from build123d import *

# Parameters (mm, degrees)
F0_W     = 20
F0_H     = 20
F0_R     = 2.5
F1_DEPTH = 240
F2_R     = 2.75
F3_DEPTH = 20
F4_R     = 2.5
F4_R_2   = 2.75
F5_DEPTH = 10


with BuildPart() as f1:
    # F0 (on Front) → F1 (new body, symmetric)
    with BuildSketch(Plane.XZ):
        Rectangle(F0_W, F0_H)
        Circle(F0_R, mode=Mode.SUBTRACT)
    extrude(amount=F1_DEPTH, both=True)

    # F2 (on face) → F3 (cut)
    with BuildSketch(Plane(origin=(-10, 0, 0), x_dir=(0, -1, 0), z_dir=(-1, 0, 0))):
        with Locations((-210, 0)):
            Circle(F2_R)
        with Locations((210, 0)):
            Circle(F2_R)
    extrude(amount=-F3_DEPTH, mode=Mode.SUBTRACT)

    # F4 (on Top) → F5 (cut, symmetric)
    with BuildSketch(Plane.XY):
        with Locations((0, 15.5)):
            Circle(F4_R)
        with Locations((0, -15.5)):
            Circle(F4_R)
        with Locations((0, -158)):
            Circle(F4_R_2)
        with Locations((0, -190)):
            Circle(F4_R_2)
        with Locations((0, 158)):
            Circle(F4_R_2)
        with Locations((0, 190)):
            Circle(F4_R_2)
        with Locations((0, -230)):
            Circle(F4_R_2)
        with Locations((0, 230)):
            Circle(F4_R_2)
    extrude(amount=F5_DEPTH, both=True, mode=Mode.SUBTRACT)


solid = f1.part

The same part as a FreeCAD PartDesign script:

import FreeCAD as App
import Part
import Sketcher

V = App.Vector

doc = App.newDocument("Part")
body = doc.addObject("PartDesign::Body", "Body")

sketch1 = doc.addObject("Sketcher::SketchObject", "Sketch")
body.addObject(sketch1)
sketch1.AttachmentSupport = (doc.XZ_Plane, [""])
sketch1.MapMode = "FlatFace"
sketch1.addGeometry([
    Part.LineSegment(V(-10, 10, 0), V(-10, -10, 0)),
    Part.LineSegment(V(-10, -10, 0), V(10, -10, 0)),
    Part.LineSegment(V(10, -10, 0), V(10, 10, 0)),
    Part.LineSegment(V(10, 10, 0), V(-10, 10, 0)),
    Part.Circle(V(0, 0, 0), V(0, 0, 1), 2.5),
], False)
sketch1.addConstraint([
    Sketcher.Constraint("Coincident", 0, 2, 1, 1),
    Sketcher.Constraint("Coincident", 1, 2, 2, 1),
    Sketcher.Constraint("Coincident", 2, 2, 3, 1),
    Sketcher.Constraint("Coincident", 3, 2, 0, 1),
    Sketcher.Constraint("Vertical", 0),
    Sketcher.Constraint("Horizontal", 1),
    Sketcher.Constraint("Vertical", 2),
    Sketcher.Constraint("Horizontal", 3),
    Sketcher.Constraint("Coincident", 4, 3, -1, 1),
    Sketcher.Constraint("Symmetric", 0, 2, 2, 2, -1, 1),
    Sketcher.Constraint("Equal", 3, 0),
    Sketcher.Constraint("Diameter", 4, 5.0),
    Sketcher.Constraint("DistanceX", 1, 1, 1, 2, 20.0),
])
pad1 = doc.addObject("PartDesign::Pad", "Pad")
body.addObject(pad1)
pad1.Profile = sketch1
pad1.Length = 480
pad1.Midplane = True

sketch2 = doc.addObject("Sketcher::SketchObject", "Sketch001")
body.addObject(sketch2)
sketch2.AttachmentSupport = (doc.YZ_Plane, [""])
sketch2.MapMode = "FlatFace"
sketch2.AttachmentOffset = App.Placement(V(0, 0, -10), App.Rotation())
sketch2.addGeometry([
    Part.Circle(V(210, 0, 0), V(0, 0, 1), 2.75),
    Part.Circle(V(-210, 0, 0), V(0, 0, 1), 2.75),
], False)
sketch2.addConstraint([
    Sketcher.Constraint("Equal", 0, 1),
    Sketcher.Constraint("Symmetric", 0, 3, 1, 3, -1, 1),
    Sketcher.Constraint("PointOnObject", 0, 3, -1),
    Sketcher.Constraint("Diameter", 0, 5.5),
    Sketcher.Constraint("DistanceX", -1, 1, 0, 3, 210.0),
])
pocket1 = doc.addObject("PartDesign::Pocket", "Pocket")
body.addObject(pocket1)
pocket1.Profile = sketch2
pocket1.Length = 20
pocket1.Reversed = True

sketch3 = doc.addObject("Sketcher::SketchObject", "Sketch002")
body.addObject(sketch3)
sketch3.AttachmentSupport = (doc.XY_Plane, [""])
sketch3.MapMode = "FlatFace"
sketch3.addGeometry([
    Part.Circle(V(0, 15.5, 0), V(0, 0, 1), 2.5),
    Part.Circle(V(0, -15.5, 0), V(0, 0, 1), 2.5),
    Part.Circle(V(0, -158, 0), V(0, 0, 1), 2.75),
    Part.Circle(V(0, -190, 0), V(0, 0, 1), 2.75),
    Part.Circle(V(0, 158, 0), V(0, 0, 1), 2.75),
    Part.Circle(V(0, 190, 0), V(0, 0, 1), 2.75),
    Part.Circle(V(0, -230, 0), V(0, 0, 1), 2.75),
    Part.Circle(V(0, 230, 0), V(0, 0, 1), 2.75),
], False)
sketch3.addConstraint([
    Sketcher.Constraint("Equal", 0, 1),
    Sketcher.Constraint("Equal", 2, 3),
    Sketcher.Constraint("Equal", 3, 4),
    Sketcher.Constraint("Equal", 4, 5),
    Sketcher.Constraint("Equal", 5, 6),
    Sketcher.Constraint("Equal", 6, 7),
    Sketcher.Constraint("Symmetric", 0, 3, 1, 3, -1, 1),
    Sketcher.Constraint("Symmetric", 2, 3, 4, 3, -1, 1),
    Sketcher.Constraint("Symmetric", 3, 3, 5, 3, -1, 1),
    Sketcher.Constraint("Symmetric", 6, 3, 7, 3, -1, 1),
    Sketcher.Constraint("PointOnObject", 0, 3, -2),
    Sketcher.Constraint("PointOnObject", 2, 3, -2),
    Sketcher.Constraint("PointOnObject", 3, 3, -2),
    Sketcher.Constraint("PointOnObject", 6, 3, -2),
    Sketcher.Constraint("Diameter", 0, 5.0),
    Sketcher.Constraint("Diameter", 2, 5.5),
    Sketcher.Constraint("DistanceY", 2, 3, -1, 1, 158.0),
    Sketcher.Constraint("DistanceY", 3, 3, -1, 1, 190.0),
    Sketcher.Constraint("DistanceY", 6, 3, -1, 1, 230.0),
    Sketcher.Constraint("DistanceY", 1, 3, 0, 3, 31.0),
])
pocket2 = doc.addObject("PartDesign::Pocket", "Pocket001")
body.addObject(pocket2)
pocket2.Profile = sketch3
pocket2.Length = 20
pocket2.Midplane = True

doc.recompute()
